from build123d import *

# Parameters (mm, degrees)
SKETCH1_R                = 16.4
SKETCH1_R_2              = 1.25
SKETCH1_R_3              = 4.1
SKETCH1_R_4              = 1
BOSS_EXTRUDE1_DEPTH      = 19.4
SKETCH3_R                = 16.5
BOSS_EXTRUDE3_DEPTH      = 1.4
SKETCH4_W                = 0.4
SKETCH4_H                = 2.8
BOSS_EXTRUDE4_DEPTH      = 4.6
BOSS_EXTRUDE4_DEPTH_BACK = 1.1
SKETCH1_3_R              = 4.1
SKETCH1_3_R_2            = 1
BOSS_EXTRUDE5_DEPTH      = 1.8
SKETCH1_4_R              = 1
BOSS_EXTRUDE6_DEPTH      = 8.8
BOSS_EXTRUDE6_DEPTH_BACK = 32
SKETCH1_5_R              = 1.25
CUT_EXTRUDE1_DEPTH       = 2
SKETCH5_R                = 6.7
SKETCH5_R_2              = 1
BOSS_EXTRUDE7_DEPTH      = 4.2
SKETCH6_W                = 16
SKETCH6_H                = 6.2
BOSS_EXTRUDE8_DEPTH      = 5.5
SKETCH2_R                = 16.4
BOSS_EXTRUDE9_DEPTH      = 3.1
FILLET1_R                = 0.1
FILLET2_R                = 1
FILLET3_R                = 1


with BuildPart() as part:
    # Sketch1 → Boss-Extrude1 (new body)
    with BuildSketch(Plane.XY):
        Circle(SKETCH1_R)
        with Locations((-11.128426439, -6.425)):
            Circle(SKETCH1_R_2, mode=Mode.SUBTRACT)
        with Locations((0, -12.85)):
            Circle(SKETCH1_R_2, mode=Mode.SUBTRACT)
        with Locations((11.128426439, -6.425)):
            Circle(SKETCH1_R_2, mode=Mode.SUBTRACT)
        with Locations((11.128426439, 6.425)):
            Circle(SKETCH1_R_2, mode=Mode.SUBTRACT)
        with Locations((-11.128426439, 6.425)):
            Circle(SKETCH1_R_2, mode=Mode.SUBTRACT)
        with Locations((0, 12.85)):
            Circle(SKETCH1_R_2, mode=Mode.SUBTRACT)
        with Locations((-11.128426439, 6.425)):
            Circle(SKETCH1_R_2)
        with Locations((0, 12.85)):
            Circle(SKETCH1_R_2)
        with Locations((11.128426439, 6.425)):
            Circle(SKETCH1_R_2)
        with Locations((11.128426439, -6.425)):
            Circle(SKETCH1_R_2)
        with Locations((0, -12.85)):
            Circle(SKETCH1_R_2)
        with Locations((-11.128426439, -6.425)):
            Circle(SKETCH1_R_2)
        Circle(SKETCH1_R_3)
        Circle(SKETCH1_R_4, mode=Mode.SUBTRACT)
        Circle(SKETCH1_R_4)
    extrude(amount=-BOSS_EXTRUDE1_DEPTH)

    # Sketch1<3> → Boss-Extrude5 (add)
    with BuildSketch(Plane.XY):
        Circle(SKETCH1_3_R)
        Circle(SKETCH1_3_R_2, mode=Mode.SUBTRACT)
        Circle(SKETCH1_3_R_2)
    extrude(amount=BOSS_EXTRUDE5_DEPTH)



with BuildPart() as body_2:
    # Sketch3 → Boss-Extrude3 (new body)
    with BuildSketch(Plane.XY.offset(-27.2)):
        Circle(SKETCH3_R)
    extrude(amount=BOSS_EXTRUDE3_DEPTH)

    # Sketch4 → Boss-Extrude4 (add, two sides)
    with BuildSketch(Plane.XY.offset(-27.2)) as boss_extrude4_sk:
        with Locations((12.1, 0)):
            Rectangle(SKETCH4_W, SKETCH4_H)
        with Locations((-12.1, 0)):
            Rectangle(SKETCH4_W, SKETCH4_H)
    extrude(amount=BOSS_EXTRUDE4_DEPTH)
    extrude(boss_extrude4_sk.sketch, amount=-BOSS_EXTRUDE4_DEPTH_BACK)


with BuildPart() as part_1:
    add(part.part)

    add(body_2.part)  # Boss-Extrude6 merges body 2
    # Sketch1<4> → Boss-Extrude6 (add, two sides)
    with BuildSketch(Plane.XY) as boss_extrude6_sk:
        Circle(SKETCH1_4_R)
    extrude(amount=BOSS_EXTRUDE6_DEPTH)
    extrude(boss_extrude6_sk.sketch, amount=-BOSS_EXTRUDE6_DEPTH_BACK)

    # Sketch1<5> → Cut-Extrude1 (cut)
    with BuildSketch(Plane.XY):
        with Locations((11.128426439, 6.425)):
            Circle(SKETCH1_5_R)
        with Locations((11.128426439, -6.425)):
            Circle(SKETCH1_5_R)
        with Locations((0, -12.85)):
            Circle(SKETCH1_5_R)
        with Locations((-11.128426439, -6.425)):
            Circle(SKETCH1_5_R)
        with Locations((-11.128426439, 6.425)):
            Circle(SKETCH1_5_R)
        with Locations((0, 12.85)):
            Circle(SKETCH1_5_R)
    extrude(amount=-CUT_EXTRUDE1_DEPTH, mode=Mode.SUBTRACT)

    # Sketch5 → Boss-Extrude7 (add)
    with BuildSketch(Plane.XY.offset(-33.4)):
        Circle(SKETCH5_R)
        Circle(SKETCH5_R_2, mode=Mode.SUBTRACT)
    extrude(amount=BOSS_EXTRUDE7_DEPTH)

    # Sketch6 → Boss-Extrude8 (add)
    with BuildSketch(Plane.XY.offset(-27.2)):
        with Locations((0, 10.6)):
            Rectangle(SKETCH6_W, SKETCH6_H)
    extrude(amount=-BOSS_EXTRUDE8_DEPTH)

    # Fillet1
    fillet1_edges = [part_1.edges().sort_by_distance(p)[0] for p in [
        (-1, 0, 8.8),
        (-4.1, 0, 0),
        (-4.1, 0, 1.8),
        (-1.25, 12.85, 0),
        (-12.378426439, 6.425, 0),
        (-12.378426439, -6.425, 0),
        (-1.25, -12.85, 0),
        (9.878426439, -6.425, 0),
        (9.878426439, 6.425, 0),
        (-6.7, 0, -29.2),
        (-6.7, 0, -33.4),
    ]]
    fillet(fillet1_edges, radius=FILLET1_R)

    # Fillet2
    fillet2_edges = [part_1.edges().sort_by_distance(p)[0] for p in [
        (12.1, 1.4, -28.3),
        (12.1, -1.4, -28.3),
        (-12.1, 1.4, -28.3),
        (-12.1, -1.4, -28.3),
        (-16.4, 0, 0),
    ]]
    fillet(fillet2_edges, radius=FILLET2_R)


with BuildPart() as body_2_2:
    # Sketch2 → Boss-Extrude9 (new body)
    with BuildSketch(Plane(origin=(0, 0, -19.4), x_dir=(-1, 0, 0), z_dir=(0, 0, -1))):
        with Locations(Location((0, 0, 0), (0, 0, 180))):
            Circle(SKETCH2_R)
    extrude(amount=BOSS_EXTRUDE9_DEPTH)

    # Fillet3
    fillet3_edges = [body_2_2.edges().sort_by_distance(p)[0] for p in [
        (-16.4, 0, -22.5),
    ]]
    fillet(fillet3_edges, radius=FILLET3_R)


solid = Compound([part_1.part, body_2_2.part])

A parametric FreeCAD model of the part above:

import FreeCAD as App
import Part
import Sketcher
Q = App.Units.Quantity


def edges_at(feature, points):
    """Names of the edges that pass closest to the given points."""
    edges = feature.Shape.Edges
    near = lambda p: min(range(len(edges)), key=lambda i: edges[i].distToShape(Part.Vertex(*p))[0])
    return sorted({f"Edge{near(p) + 1}" for p in points})

doc = App.newDocument("Part")
body = doc.addObject("PartDesign::Body", "Body")

sketch1 = doc.addObject("Sketcher::SketchObject", "Sketch")
body.addObject(sketch1)
sketch1.AttachmentSupport = (doc.XY_Plane, [""])
sketch1.MapMode = "FlatFace"
sketch1.addGeometry(Part.Circle(App.Vector(0, 0, 0), App.Vector(0, 0, 1), 16), False)
sketch1.addConstraint([
    Sketcher.Constraint("Coincident", 0, 3, -1, 1),
    Sketcher.Constraint("Diameter", 0, Q("32.8 mm")),
])
pad1 = doc.addObject("PartDesign::Pad", "Pad")
body.addObject(pad1)
pad1.Profile = sketch1
pad1.Length = 19.4
pad1.Reversed = True

sketch2 = doc.addObject("Sketcher::SketchObject", "Sketch001")
body.addObject(sketch2)
sketch2.AttachmentSupport = (doc.XY_Plane, [""])
sketch2.MapMode = "FlatFace"
sketch2.addGeometry(Part.Circle(App.Vector(0, 0, 0), App.Vector(0, 0, 1), 4.1), False)
sketch2.addConstraint([
    Sketcher.Constraint("Coincident", 0, 3, -1, 1),
    Sketcher.Constraint("Diameter", 0, Q("8.2 mm")),
])
pad2 = doc.addObject("PartDesign::Pad", "Pad001")
body.addObject(pad2)
pad2.Profile = sketch2
pad2.Length = 1.8
body2 = doc.addObject("PartDesign::Body", "Body001")

sketch3 = doc.addObject("Sketcher::SketchObject", "Sketch002")
body2.addObject(sketch3)
sketch3.AttachmentSupport = (doc.getObject("XY_Plane001"), [""])
sketch3.MapMode = "FlatFace"
sketch3.AttachmentOffset = App.Placement(App.Vector(0, 0, -27.2), App.Rotation())
sketch3.addGeometry(Part.Circle(App.Vector(0, 0, 0), App.Vector(0, 0, 1), 16), False)
sketch3.addConstraint([
    Sketcher.Constraint("Coincident", 0, 3, -1, 1),
    Sketcher.Constraint("Diameter", 0, Q("33 mm")),
])
pad3 = doc.addObject("PartDesign::Pad", "Pad002")
body2.addObject(pad3)
pad3.Profile = sketch3
pad3.Length = 1.4

sketch4 = doc.addObject("Sketcher::SketchObject", "Sketch003")
body2.addObject(sketch4)
sketch4.AttachmentSupport = (doc.getObject("XY_Plane001"), [""])
sketch4.MapMode = "FlatFace"
sketch4.AttachmentOffset = App.Placement(App.Vector(0, 0, -27.2), App.Rotation())
sketch4.addGeometry([
    Part.LineSegment(App.Vector(11.9, 1.4, 0), App.Vector(11.9, -1.4, 0)),
    Part.LineSegment(App.Vector(11.9, -1.4, 0), App.Vector(12.3, -1.4, 0)),
    Part.LineSegment(App.Vector(12.3, -1.4, 0), App.Vector(12.3, 1.4, 0)),
    Part.LineSegment(App.Vector(12.3, 1.4, 0), App.Vector(11.9, 1.4, 0)),
    Part.LineSegment(App.Vector(-12.3, 1.4, 0), App.Vector(-12.3, -1.4, 0)),
    Part.LineSegment(App.Vector(-12.3, -1.4, 0), App.Vector(-11.9, -1.4, 0)),
    Part.LineSegment(App.Vector(-11.9, -1.4, 0), App.Vector(-11.9, 1.4, 0)),
    Part.LineSegment(App.Vector(-11.9, 1.4, 0), App.Vector(-12.3, 1.4, 0)),
], False)
sketch4.addConstraint([
    Sketcher.Constraint("Coincident", 0, 2, 1, 1),
    Sketcher.Constraint("Coincident", 1, 2, 2, 1),
    Sketcher.Constraint("Coincident", 2, 2, 3, 1),
    Sketcher.Constraint("Coincident", 3, 2, 0, 1),
    Sketcher.Constraint("Coincident", 4, 2, 5, 1),
    Sketcher.Constraint("Coincident", 5, 2, 6, 1),
    Sketcher.Constraint("Coincident", 6, 2, 7, 1),
    Sketcher.Constraint("Coincident", 7, 2, 4, 1),
    Sketcher.Constraint("Vertical", 0),
    Sketcher.Constraint("Horizontal", 1),
    Sketcher.Constraint("Vertical", 2),
    Sketcher.Constraint("Horizontal", 3),
    Sketcher.Constraint("Vertical", 4),
    Sketcher.Constraint("Horizontal", 5),
    Sketcher.Constraint("Vertical", 6),
    Sketcher.Constraint("Horizontal", 7),
    Sketcher.Constraint("Symmetric", 2, 2, 4, 2, -1, 1),
    Sketcher.Constraint("Symmetric", 0, 2, 6, 2, -1, 1),
    Sketcher.Constraint("Horizontal", 1, 2, 4, 2),
    Sketcher.Constraint("DistanceX", 1, 1, 1, 2, Q("0.4 mm")),
    Sketcher.Constraint("DistanceY", 0, 2, 0, 1, Q("2.8 mm")),
    Sketcher.Constraint("DistanceX", -1, 1, 0, 2, Q("11.9 mm")),
])
pad4 = doc.addObject("PartDesign::Pad", "Pad003")
body2.addObject(pad4)
pad4.Profile = sketch4
pad4.Type = "TwoLengths"
pad4.Length = 4.6
pad4.Length2 = 1.1
body.AllowCompound = True
doc.recompute()

boolean = doc.addObject("PartDesign::Boolean", "Boolean")
body.addObject(boolean)
boolean.Type = "Fuse"
boolean.addObjects([body2])

sketch5 = doc.addObject("Sketcher::SketchObject", "Sketch004")
body.addObject(sketch5)
sketch5.AttachmentSupport = (doc.XY_Plane, [""])
sketch5.MapMode = "FlatFace"
sketch5.addGeometry(Part.Circle(App.Vector(0, 0, 0), App.Vector(0, 0, 1), 1), False)
sketch5.addConstraint([
    Sketcher.Constraint("Coincident", 0, 3, -1, 1),
    Sketcher.Constraint("Diameter", 0, Q("2 mm")),
])
pad5 = doc.addObject("PartDesign::Pad", "Pad004")
body.addObject(pad5)
pad5.Profile = sketch5
pad5.Type = "TwoLengths"
pad5.Length = 8.8
pad5.Length2 = 32

sketch6 = doc.addObject("Sketcher::SketchObject", "Sketch005")
body.addObject(sketch6)
sketch6.AttachmentSupport = (doc.XY_Plane, [""])
sketch6.MapMode = "FlatFace"
sketch6.addGeometry([
    Part.Circle(App.Vector(11.1, 6.4, 0), App.Vector(0, 0, 1), 1.2),
    Part.Circle(App.Vector(11.1, -6.4, 0), App.Vector(0, 0, 1), 1.2),
    Part.Circle(App.Vector(0, -12.8, 0), App.Vector(0, 0, 1), 1.2),
    Part.Circle(App.Vector(-11.1, -6.4, 0), App.Vector(0, 0, 1), 1.2),
    Part.Circle(App.Vector(-11.1, 6.4, 0), App.Vector(0, 0, 1), 1.2),
    Part.Circle(App.Vector(0, 12.8, 0), App.Vector(0, 0, 1), 1.2),
], False)
sketch6.addConstraint([
    Sketcher.Constraint("Equal", 0, 1),
    Sketcher.Constraint("Equal", 1, 2),
    Sketcher.Constraint("Equal", 2, 3),
    Sketcher.Constraint("Equal", 3, 4),
    Sketcher.Constraint("Equal", 4, 5),
    Sketcher.Constraint("Symmetric", 0, 3, 3, 3, -1, 1),
    Sketcher.Constraint("Symmetric", 1, 3, 4, 3, -1, 1),
    Sketcher.Constraint("Symmetric", 2, 3, 5, 3, -1, 1),
    Sketcher.Constraint("Symmetric", 1, 3, 3, 3, -2),
    Sketcher.Constraint("PointOnObject", 2, 3, -2),
    Sketcher.Constraint("Diameter", 0, Q("2.5 mm")),
    Sketcher.Constraint("DistanceY", 2, 3, 5, 3, Q("25.7 mm")),
    Sketcher.Constraint("DistanceY", 1, 3, 0, 3, Q("12.85 mm")),
    Sketcher.Constraint("DistanceX", -1, 1, 0, 3, Q("11.128426 mm")),
])
pocket1 = doc.addObject("PartDesign::Pocket", "Pocket")
body.addObject(pocket1)
pocket1.Profile = sketch6
pocket1.Length = 2

sketch7 = doc.addObject("Sketcher::SketchObject", "Sketch006")
body.addObject(sketch7)
sketch7.AttachmentSupport = (doc.XY_Plane, [""])
sketch7.MapMode = "FlatFace"
sketch7.AttachmentOffset = App.Placement(App.Vector(0, 0, -33.4), App.Rotation())
sketch7.addGeometry([
    Part.Circle(App.Vector(0, 0, 0), App.Vector(0, 0, 1), 6.7),
    Part.Circle(App.Vector(0, 0, 0), App.Vector(0, 0, 1), 1),
], False)
sketch7.addConstraint([
    Sketcher.Constraint("Coincident", 0, 3, -1, 1),
    Sketcher.Constraint("Coincident", 1, 3, -1, 1),
    Sketcher.Constraint("Diameter", 1, Q("2 mm")),
    Sketcher.Constraint("Diameter", 0, Q("13.4 mm")),
])
pad6 = doc.addObject("PartDesign::Pad", "Pad005")
body.addObject(pad6)
pad6.Profile = sketch7
pad6.Length = 4.2

sketch8 = doc.addObject("Sketcher::SketchObject", "Sketch007")
body.addObject(sketch8)
sketch8.AttachmentSupport = (doc.XY_Plane, [""])
sketch8.MapMode = "FlatFace"
sketch8.AttachmentOffset = App.Placement(App.Vector(0, 0, -27.2), App.Rotation())
sketch8.addGeometry([
    Part.LineSegment(App.Vector(-8, 14, 0), App.Vector(-8, 8, 0)),
    Part.LineSegment(App.Vector(-8, 8, 0), App.Vector(8, 8, 0)),
    Part.LineSegment(App.Vector(8, 8, 0), App.Vector(8, 14, 0)),
    Part.LineSegment(App.Vector(8, 14, 0), App.Vector(-8, 14, 0)),
], False)
sketch8.addConstraint([
    Sketcher.Constraint("Coincident", 0, 2, 1, 1),
    Sketcher.Constraint("Coincident", 1, 2, 2, 1),
    Sketcher.Constraint("Coincident", 2, 2, 3, 1),
    Sketcher.Constraint("Coincident", 3, 2, 0, 1),
    Sketcher.Constraint("Vertical", 0),
    Sketcher.Constraint("Horizontal", 1),
    Sketcher.Constraint("Vertical", 2),
    Sketcher.Constraint("Horizontal", 3),
    Sketcher.Constraint("DistanceX", 1, 1, 1, 2, Q("16 mm")),
    Sketcher.Constraint("DistanceY", 0, 2, 0, 1, Q("6.2 mm")),
    Sketcher.Constraint("DistanceX", 0, 2, -1, 1, Q("8 mm")),
    Sketcher.Constraint("DistanceY", -1, 1, 0, 2, Q("7.5 mm")),
])
pad7 = doc.addObject("PartDesign::Pad", "Pad006")
body.addObject(pad7)
pad7.Profile = sketch8
pad7.Length = 5.5
pad7.Reversed = True
doc.recompute()

fillet = doc.addObject("PartDesign::Fillet", "Fillet")
body.addObject(fillet)
fillet.Base = (pad7, edges_at(pad7, [
    (-1, 0, 8.8),
    (-4.1, 0, 0),
    (-4.1, 0, 1.8),
    (-1.25, 12.85, 0),
    (-12.378, 6.425, 0),
    (-12.378, -6.425, 0),
    (-1.25, -12.85, 0),
    (9.878, -6.425, 0),
    (9.878, 6.425, 0),
    (-6.7, 0, -29.2),
    (-6.7, 0, -33.4),
]))
fillet.Radius = 0.1
doc.recompute()

fillet2 = doc.addObject("PartDesign::Fillet", "Fillet001")
body.addObject(fillet2)
fillet2.Base = (fillet, edges_at(fillet, [
    (12.1, 1.4, -28.3),
    (12.1, -1.4, -28.3),
    (-12.1, 1.4, -28.3),
    (-12.1, -1.4, -28.3),
    (-16.4, 0, 0),
]))
fillet2.Radius = 1
body3 = doc.addObject("PartDesign::Body", "Body002")

sketch9 = doc.addObject("Sketcher::SketchObject", "Sketch008")
body3.addObject(sketch9)
sketch9.AttachmentSupport = (doc.getObject("XY_Plane002"), [""])
sketch9.MapMode = "FlatFace"
sketch9.AttachmentOffset = App.Placement(App.Vector(0, 0, -19.4), App.Rotation())
sketch9.addGeometry(Part.Circle(App.Vector(0, 0, 0), App.Vector(0, 0, 1), 16), False)
sketch9.addConstraint([
    Sketcher.Constraint("Coincident", 0, 3, -1, 1),
    Sketcher.Constraint("Diameter", 0, Q("32.8 mm")),
])
pad8 = doc.addObject("PartDesign::Pad", "Pad007")
body3.addObject(pad8)
pad8.Profile = sketch9
pad8.Length = 3.1
pad8.Reversed = True
doc.recompute()

fillet3 = doc.addObject("PartDesign::Fillet", "Fillet002")
body3.addObject(fillet3)
fillet3.Base = (pad8, edges_at(pad8, [(-16.4, 0, -22.5)]))
fillet3.Radius = 1

doc.recompute()
